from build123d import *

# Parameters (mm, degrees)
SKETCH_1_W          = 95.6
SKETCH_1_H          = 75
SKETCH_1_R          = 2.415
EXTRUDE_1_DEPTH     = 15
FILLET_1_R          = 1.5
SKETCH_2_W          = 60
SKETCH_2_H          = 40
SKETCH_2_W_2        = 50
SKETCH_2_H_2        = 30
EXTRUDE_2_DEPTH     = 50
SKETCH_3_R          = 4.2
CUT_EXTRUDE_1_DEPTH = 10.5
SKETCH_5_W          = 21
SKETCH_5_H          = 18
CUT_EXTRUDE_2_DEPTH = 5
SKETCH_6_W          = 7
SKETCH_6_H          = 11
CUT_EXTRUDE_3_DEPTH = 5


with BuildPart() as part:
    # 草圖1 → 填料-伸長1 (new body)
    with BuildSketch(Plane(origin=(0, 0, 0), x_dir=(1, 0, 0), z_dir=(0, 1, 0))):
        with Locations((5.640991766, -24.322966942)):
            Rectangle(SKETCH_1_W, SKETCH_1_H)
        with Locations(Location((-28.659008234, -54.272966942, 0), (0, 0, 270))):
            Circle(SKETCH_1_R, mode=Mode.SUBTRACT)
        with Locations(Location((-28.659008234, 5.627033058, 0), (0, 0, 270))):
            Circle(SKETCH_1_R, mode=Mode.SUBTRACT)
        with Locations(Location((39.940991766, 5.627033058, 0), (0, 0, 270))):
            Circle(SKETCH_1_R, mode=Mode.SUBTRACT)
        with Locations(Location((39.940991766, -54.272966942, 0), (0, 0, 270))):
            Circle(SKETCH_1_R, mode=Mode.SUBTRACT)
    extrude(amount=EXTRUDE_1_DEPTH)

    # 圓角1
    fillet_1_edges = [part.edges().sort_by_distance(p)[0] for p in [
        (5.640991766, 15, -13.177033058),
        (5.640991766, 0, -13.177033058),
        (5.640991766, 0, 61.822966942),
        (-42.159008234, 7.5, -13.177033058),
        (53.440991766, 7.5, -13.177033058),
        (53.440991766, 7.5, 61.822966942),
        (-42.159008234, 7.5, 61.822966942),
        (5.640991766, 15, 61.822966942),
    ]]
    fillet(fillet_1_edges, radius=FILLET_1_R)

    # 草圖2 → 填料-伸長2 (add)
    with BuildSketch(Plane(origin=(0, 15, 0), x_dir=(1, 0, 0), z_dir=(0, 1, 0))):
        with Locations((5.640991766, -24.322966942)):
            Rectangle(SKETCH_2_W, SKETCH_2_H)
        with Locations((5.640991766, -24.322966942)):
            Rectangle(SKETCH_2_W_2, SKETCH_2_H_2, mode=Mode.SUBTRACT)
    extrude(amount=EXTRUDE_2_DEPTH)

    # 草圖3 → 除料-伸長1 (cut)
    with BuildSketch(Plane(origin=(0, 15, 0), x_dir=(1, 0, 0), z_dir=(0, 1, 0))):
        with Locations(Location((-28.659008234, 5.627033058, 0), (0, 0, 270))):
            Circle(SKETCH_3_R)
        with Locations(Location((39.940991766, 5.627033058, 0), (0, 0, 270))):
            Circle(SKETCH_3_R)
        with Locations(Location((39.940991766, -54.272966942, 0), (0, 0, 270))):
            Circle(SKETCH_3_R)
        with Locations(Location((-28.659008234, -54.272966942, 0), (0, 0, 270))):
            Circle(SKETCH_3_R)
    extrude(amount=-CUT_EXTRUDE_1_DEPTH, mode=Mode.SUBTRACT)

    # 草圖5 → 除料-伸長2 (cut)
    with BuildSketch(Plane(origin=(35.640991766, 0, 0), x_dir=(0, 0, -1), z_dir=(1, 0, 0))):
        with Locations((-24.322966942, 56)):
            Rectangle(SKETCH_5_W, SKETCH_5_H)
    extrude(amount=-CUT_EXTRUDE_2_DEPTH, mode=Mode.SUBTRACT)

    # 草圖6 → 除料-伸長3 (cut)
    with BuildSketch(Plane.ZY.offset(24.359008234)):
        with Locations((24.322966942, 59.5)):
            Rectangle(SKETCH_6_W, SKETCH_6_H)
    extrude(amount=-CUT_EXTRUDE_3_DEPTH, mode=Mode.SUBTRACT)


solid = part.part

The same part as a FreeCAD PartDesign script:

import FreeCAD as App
import Part
import Sketcher
Q = App.Units.Quantity


def edges_at(feature, points):
    """Names of the edges that pass closest to the given points."""
    edges = feature.Shape.Edges
    near = lambda p: min(range(len(edges)), key=lambda i: edges[i].distToShape(Part.Vertex(*p))[0])
    return sorted({f"Edge{near(p) + 1}" for p in points})

doc = App.newDocument("Part")
body = doc.addObject("PartDesign::Body", "Body")

# Sketch on XZ plane
sketch1 = body.newObject("Sketcher::SketchObject", "Sketch")
sketch1.AttachmentSupport = (doc.getObject("XZ_Plane"), [""])
sketch1.MapMode = "FlatFace"
sketch1.addGeometry([
    Part.LineSegment(App.Vector(-42.2, -13.2, 0), App.Vector(-42.2, 61.8, 0)),  # 0
    Part.LineSegment(App.Vector(-42.2, 61.8, 0), App.Vector(53.4, 61.8, 0)),  # 1
    Part.LineSegment(App.Vector(53.4, 61.8, 0), App.Vector(53.4, -13.2, 0)),  # 2
    Part.LineSegment(App.Vector(53.4, -13.2, 0), App.Vector(-42.2, -13.2, 0)),  # 3
    Part.Circle(App.Vector(-28.7, 54.3, 0), App.Vector(0, 0, 1), 2.4),  # 4
    Part.Circle(App.Vector(39.9, 54.3, 0), App.Vector(0, 0, 1), 2.4),  # 5
    Part.Circle(App.Vector(-28.7, -5.6, 0), App.Vector(0, 0, 1), 2.4),  # 6
    Part.Circle(App.Vector(39.9, -5.6, 0), App.Vector(0, 0, 1), 2.4),  # 7
], False)
sketch1.addConstraint([
    Sketcher.Constraint("Coincident", 0, 2, 1, 1),
    Sketcher.Constraint("Coincident", 1, 2, 2, 1),
    Sketcher.Constraint("Coincident", 2, 2, 3, 1),
    Sketcher.Constraint("Coincident", 3, 2, 0, 1),
    Sketcher.Constraint("Vertical", 0),
    Sketcher.Constraint("Horizontal", 1),
    Sketcher.Constraint("Vertical", 2),
    Sketcher.Constraint("Horizontal", 3),
    Sketcher.Constraint("Equal", 4, 5),
    Sketcher.Constraint("Equal", 5, 6),
    Sketcher.Constraint("Equal", 6, 7),
    Sketcher.Constraint("Horizontal", 4, 3, 5, 3),
    Sketcher.Constraint("Horizontal", 6, 3, 7, 3),
    Sketcher.Constraint("Vertical", 4, 3, 6, 3),
    Sketcher.Constraint("Vertical", 5, 3, 7, 3),
    Sketcher.Constraint("Diameter", 4, Q("4.83 mm")),
    Sketcher.Constraint("DistanceY", 0, 1, 0, 2, Q("75 mm")),
    Sketcher.Constraint("DistanceX", 1, 1, 1, 2, Q("95.6 mm")),
    Sketcher.Constraint("DistanceX", 4, 3, 5, 3, Q("68.6 mm")),
    Sketcher.Constraint("DistanceY", 6, 3, 4, 3, Q("59.9 mm")),
    Sketcher.Constraint("DistanceX", 0, 2, 4, 3, Q("13.5 mm")),
    Sketcher.Constraint("DistanceY", 4, 3, 0, 2, Q("7.55 mm")),
    Sketcher.Constraint("DistanceX", 4, 3, -1, 1, Q("28.659008 mm")),
    Sketcher.Constraint("DistanceY", -1, 1, 4, 3, Q("54.272967 mm")),
])
pad1 = body.newObject("PartDesign::Pad", "Pad")
pad1.Profile = sketch1
pad1.Length = 15
pad1.Reversed = True
doc.recompute()

fillet = body.newObject("PartDesign::Fillet", "Fillet")
fillet.Base = (pad1, edges_at(pad1, [
    (5.641, 15, -13.177),
    (5.641, 0, -13.177),
    (5.641, 0, 61.823),
    (-42.159, 7.5, -13.177),
    (53.441, 7.5, -13.177),
    (53.441, 7.5, 61.823),
    (-42.159, 7.5, 61.823),
    (5.641, 15, 61.823),
]))
fillet.Radius = 1.5

# Sketch on XZ plane
sketch2 = body.newObject("Sketcher::SketchObject", "Sketch001")
sketch2.AttachmentSupport = (doc.getObject("XZ_Plane"), [""])
sketch2.MapMode = "FlatFace"
sketch2.AttachmentOffset = App.Placement(App.Vector(0, 0, -15), App.Rotation())
sketch2.addGeometry([
    Part.LineSegment(App.Vector(-24, 4, 0), App.Vector(-24, 44, 0)),  # 0
    Part.LineSegment(App.Vector(-24, 44, 0), App.Vector(36, 44, 0)),  # 1
    Part.LineSegment(App.Vector(36, 44, 0), App.Vector(36, 4, 0)),  # 2
    Part.LineSegment(App.Vector(36, 4, 0), App.Vector(-24, 4, 0)),  # 3
    Part.LineSegment(App.Vector(31, 39, 0), App.Vector(-19, 39, 0)),  # 4
    Part.LineSegment(App.Vector(-19, 39, 0), App.Vector(-19, 9, 0)),  # 5
    Part.LineSegment(App.Vector(-19, 9, 0), App.Vector(31, 9, 0)),  # 6
    Part.LineSegment(App.Vector(31, 9, 0), App.Vector(31, 39, 0)),  # 7
], False)
sketch2.addConstraint([
    Sketcher.Constraint("Coincident", 0, 2, 1, 1),
    Sketcher.Constraint("Coincident", 1, 2, 2, 1),
    Sketcher.Constraint("Coincident", 2, 2, 3, 1),
    Sketcher.Constraint("Coincident", 3, 2, 0, 1),
    Sketcher.Constraint("Coincident", 4, 2, 5, 1),
    Sketcher.Constraint("Coincident", 5, 2, 6, 1),
    Sketcher.Constraint("Coincident", 6, 2, 7, 1),
    Sketcher.Constraint("Coincident", 7, 2, 4, 1),
    Sketcher.Constraint("Vertical", 0),
    Sketcher.Constraint("Horizontal", 1),
    Sketcher.Constraint("Vertical", 2),
    Sketcher.Constraint("Horizontal", 3),
    Sketcher.Constraint("Horizontal", 4),
    Sketcher.Constraint("Vertical", 5),
    Sketcher.Constraint("Horizontal", 6),
    Sketcher.Constraint("Vertical", 7),
    Sketcher.Constraint("DistanceX", 1, 1, 1, 2, Q("60 mm")),
    Sketcher.Constraint("DistanceX", 4, 2, 4, 1, Q("50 mm")),
    Sketcher.Constraint("DistanceY", 0, 1, 0, 2, Q("40 mm")),
    Sketcher.Constraint("DistanceY", 5, 2, 5, 1, Q("30 mm")),
    Sketcher.Constraint("DistanceX", 0, 2, 4, 2, Q("5 mm")),
    Sketcher.Constraint("DistanceY", 4, 2, 0, 2, Q("5 mm")),
    Sketcher.Constraint("DistanceX", 0, 2, -1, 1, Q("24.359008 mm")),
    Sketcher.Constraint("DistanceY", -1, 1, 0, 2, Q("44.322967 mm")),
])
pad2 = body.newObject("PartDesign::Pad", "Pad001")
pad2.Profile = sketch2
pad2.Length = 50
pad2.Reversed = True

# Sketch on XZ plane
sketch3 = body.newObject("Sketcher::SketchObject", "Sketch002")
sketch3.AttachmentSupport = (doc.getObject("XZ_Plane"), [""])
sketch3.MapMode = "FlatFace"
sketch3.AttachmentOffset = App.Placement(App.Vector(0, 0, -15), App.Rotation())
sketch3.addGeometry([
    Part.Circle(App.Vector(-28.7, -5.6, 0), App.Vector(0, 0, 1), 4.2),
    Part.Circle(App.Vector(39.9, -5.6, 0), App.Vector(0, 0, 1), 4.2),
    Part.Circle(App.Vector(39.9, 54.3, 0), App.Vector(0, 0, 1), 4.2),
    Part.Circle(App.Vector(-28.7, 54.3, 0), App.Vector(0, 0, 1), 4.2),
], False)
sketch3.addConstraint([
    Sketcher.Constraint("Equal", 0, 1),
    Sketcher.Constraint("Equal", 1, 2),
    Sketcher.Constraint("Equal", 2, 3),
    Sketcher.Constraint("Horizontal", 0, 3, 1, 3),
    Sketcher.Constraint("Horizontal", 2, 3, 3, 3),
    Sketcher.Constraint("Vertical", 1, 3, 2, 3),
    Sketcher.Constraint("Vertical", 0, 3, 3, 3),
    Sketcher.Constraint("Diameter", 0, Q("8.4 mm")),
    Sketcher.Constraint("DistanceX", 0, 3, 1, 3, Q("68.6 mm")),
    Sketcher.Constraint("DistanceY", 1, 3, 2, 3, Q("59.9 mm")),
    Sketcher.Constraint("DistanceX", 0, 3, -1, 1, Q("28.659008 mm")),
    Sketcher.Constraint("DistanceY", 0, 3, -1, 1, Q("5.627033 mm")),
])
pocket1 = body.newObject("PartDesign::Pocket", "Pocket")
pocket1.Profile = sketch3
pocket1.Length = 10.5
pocket1.Reversed = True

# Sketch on YZ plane
sketch4 = body.newObject("Sketcher::SketchObject", "Sketch003")
sketch4.AttachmentSupport = (doc.getObject("YZ_Plane"), [""])
sketch4.MapMode = "FlatFace"
sketch4.AttachmentOffset = App.Placement(App.Vector(0, 0, 35.640992), App.Rotation())
sketch4.addGeometry([
    Part.LineSegment(App.Vector(65, 35, 0), App.Vector(47, 35, 0)),
    Part.LineSegment(App.Vector(47, 35, 0), App.Vector(47, 14, 0)),
    Part.LineSegment(App.Vector(47, 14, 0), App.Vector(65, 14, 0)),
    Part.LineSegment(App.Vector(65, 14, 0), App.Vector(65, 35, 0)),
], False)
sketch4.addConstraint([
    Sketcher.Constraint("Coincident", 0, 2, 1, 1),
    Sketcher.Constraint("Coincident", 1, 2, 2, 1),
    Sketcher.Constraint("Coincident", 2, 2, 3, 1),
    Sketcher.Constraint("Coincident", 3, 2, 0, 1),
    Sketcher.Constraint("Horizontal", 0),
    Sketcher.Constraint("Vertical", 1),
    Sketcher.Constraint("Horizontal", 2),
    Sketcher.Constraint("Vertical", 3),
    Sketcher.Constraint("DistanceX", 0, 2, 0, 1, Q("18 mm")),
    Sketcher.Constraint("DistanceY", 1, 2, 1, 1, Q("21 mm")),
    Sketcher.Constraint("DistanceX", -1, 1, 0, 2, Q("47 mm")),
    Sketcher.Constraint("DistanceY", -1, 1, 0, 2, Q("34.822967 mm")),
])
pocket2 = body.newObject("PartDesign::Pocket", "Pocket001")
pocket2.Profile = sketch4
pocket2.Length = 5

# Sketch on YZ plane
sketch5 = body.newObject("Sketcher::SketchObject", "Sketch004")
sketch5.AttachmentSupport = (doc.getObject("YZ_Plane"), [""])
sketch5.MapMode = "FlatFace"
sketch5.AttachmentOffset = App.Placement(App.Vector(0, 0, -24.359008), App.Rotation())
sketch5.addGeometry([
    Part.LineSegment(App.Vector(65, 21, 0), App.Vector(54, 21, 0)),
    Part.LineSegment(App.Vector(54, 21, 0), App.Vector(54, 28, 0)),
    Part.LineSegment(App.Vector(54, 28, 0), App.Vector(65, 28, 0)),
    Part.LineSegment(App.Vector(65, 28, 0), App.Vector(65, 21, 0)),
], False)
sketch5.addConstraint([
    Sketcher.Constraint("Coincident", 0, 2, 1, 1),
    Sketcher.Constraint("Coincident", 1, 2, 2, 1),
    Sketcher.Constraint("Coincident", 2, 2, 3, 1),
    Sketcher.Constraint("Coincident", 3, 2, 0, 1),
    Sketcher.Constraint("Horizontal", 0),
    Sketcher.Constraint("Vertical", 1),
    Sketcher.Constraint("Horizontal", 2),
    Sketcher.Constraint("Vertical", 3),
    Sketcher.Constraint("DistanceX", 0, 2, 0, 1, Q("11 mm")),
    Sketcher.Constraint("DistanceY", 1, 1, 1, 2, Q("7 mm")),
    Sketcher.Constraint("DistanceX", -1, 1, 0, 2, Q("54 mm")),
    Sketcher.Constraint("DistanceY", -1, 1, 0, 2, Q("20.822967 mm")),
])
pocket3 = body.newObject("PartDesign::Pocket", "Pocket002")
pocket3.Profile = sketch5
pocket3.Length = 5
pocket3.Reversed = True

doc.recompute()
